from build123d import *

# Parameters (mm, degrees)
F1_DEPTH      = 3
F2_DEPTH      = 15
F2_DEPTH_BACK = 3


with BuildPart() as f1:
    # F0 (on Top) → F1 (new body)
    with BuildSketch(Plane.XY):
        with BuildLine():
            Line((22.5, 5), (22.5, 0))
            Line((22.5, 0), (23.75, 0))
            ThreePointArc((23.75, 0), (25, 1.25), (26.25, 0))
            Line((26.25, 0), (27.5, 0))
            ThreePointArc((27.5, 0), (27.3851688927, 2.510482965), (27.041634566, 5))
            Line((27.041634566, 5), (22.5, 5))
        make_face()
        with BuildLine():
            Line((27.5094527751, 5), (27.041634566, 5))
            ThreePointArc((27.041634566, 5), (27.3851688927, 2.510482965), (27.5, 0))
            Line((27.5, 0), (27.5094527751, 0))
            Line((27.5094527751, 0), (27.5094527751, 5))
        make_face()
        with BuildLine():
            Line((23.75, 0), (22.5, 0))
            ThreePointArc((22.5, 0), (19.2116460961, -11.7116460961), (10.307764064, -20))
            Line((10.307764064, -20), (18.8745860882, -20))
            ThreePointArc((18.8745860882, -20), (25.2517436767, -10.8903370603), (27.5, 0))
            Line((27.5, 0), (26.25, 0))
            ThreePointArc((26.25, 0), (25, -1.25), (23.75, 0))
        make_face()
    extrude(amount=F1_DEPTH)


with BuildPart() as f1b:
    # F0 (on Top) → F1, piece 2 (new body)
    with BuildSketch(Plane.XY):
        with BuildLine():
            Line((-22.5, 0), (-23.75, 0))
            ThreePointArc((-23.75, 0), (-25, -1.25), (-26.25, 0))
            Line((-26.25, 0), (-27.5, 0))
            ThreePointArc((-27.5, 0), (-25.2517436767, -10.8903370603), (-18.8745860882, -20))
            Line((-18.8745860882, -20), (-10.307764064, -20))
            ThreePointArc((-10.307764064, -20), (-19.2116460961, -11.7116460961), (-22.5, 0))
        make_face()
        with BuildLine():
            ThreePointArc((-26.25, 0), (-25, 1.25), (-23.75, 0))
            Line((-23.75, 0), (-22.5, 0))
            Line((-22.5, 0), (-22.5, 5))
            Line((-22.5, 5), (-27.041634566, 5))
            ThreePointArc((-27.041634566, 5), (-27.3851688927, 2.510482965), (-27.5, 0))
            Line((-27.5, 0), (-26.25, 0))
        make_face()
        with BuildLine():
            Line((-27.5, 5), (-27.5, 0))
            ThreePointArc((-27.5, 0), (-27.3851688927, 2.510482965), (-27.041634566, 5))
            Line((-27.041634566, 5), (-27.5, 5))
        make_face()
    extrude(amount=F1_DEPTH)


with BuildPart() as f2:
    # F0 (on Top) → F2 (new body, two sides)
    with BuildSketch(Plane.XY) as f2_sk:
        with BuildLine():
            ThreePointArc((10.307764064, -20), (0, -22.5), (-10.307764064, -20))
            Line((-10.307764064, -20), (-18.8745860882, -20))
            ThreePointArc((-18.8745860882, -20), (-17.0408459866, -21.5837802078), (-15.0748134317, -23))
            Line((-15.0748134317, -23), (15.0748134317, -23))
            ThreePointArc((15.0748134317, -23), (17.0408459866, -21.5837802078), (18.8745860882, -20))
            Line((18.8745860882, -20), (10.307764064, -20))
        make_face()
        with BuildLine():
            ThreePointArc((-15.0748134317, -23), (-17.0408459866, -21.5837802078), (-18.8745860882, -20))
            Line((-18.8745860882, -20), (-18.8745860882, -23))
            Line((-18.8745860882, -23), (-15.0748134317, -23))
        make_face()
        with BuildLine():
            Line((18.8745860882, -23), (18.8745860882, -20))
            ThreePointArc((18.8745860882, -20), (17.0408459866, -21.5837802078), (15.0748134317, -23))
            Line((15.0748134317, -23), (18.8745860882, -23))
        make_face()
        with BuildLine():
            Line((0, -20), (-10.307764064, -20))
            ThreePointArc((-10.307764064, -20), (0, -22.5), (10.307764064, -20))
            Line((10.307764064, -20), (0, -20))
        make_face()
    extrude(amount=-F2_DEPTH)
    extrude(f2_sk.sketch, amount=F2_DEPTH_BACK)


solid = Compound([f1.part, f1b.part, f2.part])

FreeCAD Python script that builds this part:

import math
import FreeCAD as App
import Part
import Sketcher
Q = App.Units.Quantity


def add_polygon(sketch, points):
    """Adds a closed chain of lines whose ends are joined by coincident constraints."""
    first, n = sketch.GeometryCount, len(points)
    for a, b in zip(points, points[1:] + points[:1]):
        sketch.addGeometry(Part.LineSegment(App.Vector(*a, 0), App.Vector(*b, 0)), False)
    for i in range(n):
        sketch.addConstraint(Sketcher.Constraint("Coincident", first + i, 2, first + (i + 1) % n, 1))

doc = App.newDocument("Part")
params = doc.addObject("Spreadsheet::Sheet", "Params")
for row, (alias, value) in enumerate([
    ("sketch1_diameter", "2.5 mm"),
    ("sketch1_radius", "22.5 mm"),
    ("sketch1_radius2", "27.5 mm"),
    ("sketch1_height", "5 mm"),
    ("pad1_length", "3 mm"),
    ("sketch2_diameter", "2.5 mm"),
    ("sketch2_radius", "27.5 mm"),
    ("sketch2_radius2", "22.5 mm"),
    ("pad2_length", "3 mm"),
    ("sketch3_height", "3 mm"),
    ("pad3_length", "15 mm"),
    ("pad3_length2", "3 mm"),
], start=1):
    params.set(f"A{row}", alias)
    params.set(f"B{row}", "=" + value)
    params.setAlias(f"B{row}", alias)

body = doc.addObject("PartDesign::Body", "Body")

sketch1 = body.newObject("Sketcher::SketchObject", "Sketch")
sketch1.AttachmentSupport = (doc.getObject("XY_Plane"), [""])
sketch1.MapMode = "FlatFace"
sketch1.addGeometry(Part.LineSegment(App.Vector(22.5, 5, 0), App.Vector(22.5, 0, 0)), False)
sketch1.addGeometry(Part.ArcOfCircle(Part.Circle(App.Vector(0, 0, 0), App.Vector(0, 0, 1), 22.5), math.radians(-62.733956), math.radians(0)), False)
sketch1.addGeometry(Part.LineSegment(App.Vector(10.307764, -20, 0), App.Vector(18.874586, -20, 0)), False)
sketch1.addGeometry(Part.ArcOfCircle(Part.Circle(App.Vector(0, 0, 0), App.Vector(0, 0, 1), 27.5), math.radians(-46.658242), math.radians(0)), False)
sketch1.addGeometry(Part.LineSegment(App.Vector(27.5, 0, 0), App.Vector(27.509453, 0, 0)), False)
sketch1.addGeometry(Part.LineSegment(App.Vector(27.509453, 0, 0), App.Vector(27.509453, 5, 0)), False)
sketch1.addGeometry(Part.LineSegment(App.Vector(27.509453, 5, 0), App.Vector(22.5, 5, 0)), False)
sketch1.addGeometry(Part.Circle(App.Vector(25, 0, 0), App.Vector(0, 0, 1), 1.25), False)
sketch1.addConstraint(Sketcher.Constraint("Tangent", 0, 2, 1, 2))
sketch1.addConstraint(Sketcher.Constraint("Coincident", 1, 1, 2, 1))
sketch1.addConstraint(Sketcher.Constraint("Coincident", 2, 2, 3, 1))
sketch1.addConstraint(Sketcher.Constraint("Coincident", 3, 2, 4, 1))
sketch1.addConstraint(Sketcher.Constraint("Coincident", 4, 2, 5, 1))
sketch1.addConstraint(Sketcher.Constraint("Coincident", 5, 2, 6, 1))
sketch1.addConstraint(Sketcher.Constraint("Coincident", 6, 2, 0, 1))
sketch1.addConstraint(Sketcher.Constraint("Vertical", 0))
sketch1.addConstraint(Sketcher.Constraint("Horizontal", 2))
sketch1.addConstraint(Sketcher.Constraint("Horizontal", 4))
sketch1.addConstraint(Sketcher.Constraint("Vertical", 5))
sketch1.addConstraint(Sketcher.Constraint("Horizontal", 6))
sketch1.addConstraint(Sketcher.Constraint("Coincident", 1, 3, -1, 1))
sketch1.addConstraint(Sketcher.Constraint("Coincident", 3, 3, -1, 1))
sketch1.addConstraint(Sketcher.Constraint("PointOnObject", 7, 3, -1))
sketch1.addConstraint(Sketcher.Constraint("PointOnObject", 3, 2, -1))
sketch1.addConstraint(Sketcher.Constraint("Diameter", 7, Q("2.5 mm")))
sketch1.addConstraint(Sketcher.Constraint("Radius", 1, Q("22.5 mm")))
sketch1.addConstraint(Sketcher.Constraint("Radius", 3, Q("27.5 mm")))
sketch1.addConstraint(Sketcher.Constraint("DistanceY", 0, 2, 0, 1, Q("5 mm")))
sketch1.addConstraint(Sketcher.Constraint("DistanceX", -1, 1, 7, 3, Q("25 mm")))
sketch1.addConstraint(Sketcher.Constraint("DistanceY", 1, 1, -1, 1, Q("20 mm")))
sketch1.addConstraint(Sketcher.Constraint("DistanceX", 4, 1, 4, 2, Q("0.009453 mm")))
sketch1.setExpression("Constraints[16]", "Params.sketch1_diameter")
sketch1.setExpression("Constraints[17]", "Params.sketch1_radius")
sketch1.setExpression("Constraints[18]", "Params.sketch1_radius2")
sketch1.setExpression("Constraints[19]", "Params.sketch1_height")
pad1 = body.newObject("PartDesign::Pad", "Pad")
pad1.Profile = sketch1
pad1.setExpression("Length", "Params.pad1_length")
body2 = doc.addObject("PartDesign::Body", "Body001")

sketch2 = body2.newObject("Sketcher::SketchObject", "Sketch001")
sketch2.AttachmentSupport = (doc.getObject("XY_Plane001"), [""])
sketch2.MapMode = "FlatFace"
sketch2.addGeometry(Part.ArcOfCircle(Part.Circle(App.Vector(0, 0, 0), App.Vector(0, 0, 1), 27.5), math.radians(180), math.radians(226.658242)), False)
sketch2.addGeometry(Part.LineSegment(App.Vector(-18.874586, -20, 0), App.Vector(-10.307764, -20, 0)), False)
sketch2.addGeometry(Part.ArcOfCircle(Part.Circle(App.Vector(0, 0, 0), App.Vector(0, 0, 1), 22.5), math.radians(180), math.radians(242.733956)), False)
sketch2.addGeometry(Part.LineSegment(App.Vector(-22.5, 0, 0), App.Vector(-22.5, 5, 0)), False)
sketch2.addGeometry(Part.LineSegment(App.Vector(-22.5, 5, 0), App.Vector(-27.5, 5, 0)), False)
sketch2.addGeometry(Part.LineSegment(App.Vector(-27.5, 5, 0), App.Vector(-27.5, 0, 0)), False)
sketch2.addGeometry(Part.Circle(App.Vector(-25, 0, 0), App.Vector(0, 0, 1), 1.25), False)
sketch2.addConstraint(Sketcher.Constraint("Coincident", 0, 2, 1, 1))
sketch2.addConstraint(Sketcher.Constraint("Coincident", 1, 2, 2, 2))
sketch2.addConstraint(Sketcher.Constraint("Tangent", 2, 1, 3, 1))
sketch2.addConstraint(Sketcher.Constraint("Coincident", 3, 2, 4, 1))
sketch2.addConstraint(Sketcher.Constraint("Coincident", 4, 2, 5, 1))
sketch2.addConstraint(Sketcher.Constraint("Tangent", 5, 2, 0, 1))
sketch2.addConstraint(Sketcher.Constraint("Horizontal", 1))
sketch2.addConstraint(Sketcher.Constraint("Vertical", 3))
sketch2.addConstraint(Sketcher.Constraint("Horizontal", 4))
sketch2.addConstraint(Sketcher.Constraint("Vertical", 5))
sketch2.addConstraint(Sketcher.Constraint("Coincident", 0, 3, -1, 1))
sketch2.addConstraint(Sketcher.Constraint("Coincident", 2, 3, -1, 1))
sketch2.addConstraint(Sketcher.Constraint("PointOnObject", 6, 3, -1))
sketch2.addConstraint(Sketcher.Constraint("Equal", 4, 3))
sketch2.addConstraint(Sketcher.Constraint("Diameter", 6, Q("2.5 mm")))
sketch2.addConstraint(Sketcher.Constraint("Radius", 0, Q("27.5 mm")))
sketch2.addConstraint(Sketcher.Constraint("Radius", 2, Q("22.5 mm")))
sketch2.addConstraint(Sketcher.Constraint("DistanceX", 6, 3, -1, 1, Q("25 mm")))
sketch2.addConstraint(Sketcher.Constraint("DistanceY", 0, 2, -1, 1, Q("20 mm")))
sketch2.setExpression("Constraints[14]", "Params.sketch2_diameter")
sketch2.setExpression("Constraints[15]", "Params.sketch2_radius")
sketch2.setExpression("Constraints[16]", "Params.sketch2_radius2")
pad2 = body2.newObject("PartDesign::Pad", "Pad001")
pad2.Profile = sketch2
pad2.setExpression("Length", "Params.pad2_length")
body3 = doc.addObject("PartDesign::Body", "Body002")

sketch3 = body3.newObject("Sketcher::SketchObject", "Sketch002")
sketch3.AttachmentSupport = (doc.getObject("XY_Plane002"), [""])
sketch3.MapMode = "FlatFace"
add_polygon(sketch3, [(-18.874586, -20), (-18.874586, -23), (18.874586, -23), (18.874586, -20)])
sketch3.addConstraint(Sketcher.Constraint("Vertical", 0))
sketch3.addConstraint(Sketcher.Constraint("Horizontal", 1))
sketch3.addConstraint(Sketcher.Constraint("Vertical", 2))
sketch3.addConstraint(Sketcher.Constraint("Horizontal", 3))
sketch3.addConstraint(Sketcher.Constraint("DistanceY", 0, 2, 0, 1, Q("3 mm")))
sketch3.addConstraint(Sketcher.Constraint("DistanceY", 0, 2, -1, 1, Q("23 mm")))
sketch3.addConstraint(Sketcher.Constraint("DistanceX", 1, 1, 1, 2, Q("37.749172 mm")))
sketch3.addConstraint(Sketcher.Constraint("DistanceX", 0, 2, -1, 1, Q("18.874586 mm")))
sketch3.setExpression("Constraints[8]", "Params.sketch3_height")
pad3 = body3.newObject("PartDesign::Pad", "Pad002")
pad3.Profile = sketch3
pad3.Type = "TwoLengths"
pad3.setExpression("Length", "Params.pad3_length")
pad3.setExpression("Length2", "Params.pad3_length2")
pad3.Reversed = True

doc.recompute()
